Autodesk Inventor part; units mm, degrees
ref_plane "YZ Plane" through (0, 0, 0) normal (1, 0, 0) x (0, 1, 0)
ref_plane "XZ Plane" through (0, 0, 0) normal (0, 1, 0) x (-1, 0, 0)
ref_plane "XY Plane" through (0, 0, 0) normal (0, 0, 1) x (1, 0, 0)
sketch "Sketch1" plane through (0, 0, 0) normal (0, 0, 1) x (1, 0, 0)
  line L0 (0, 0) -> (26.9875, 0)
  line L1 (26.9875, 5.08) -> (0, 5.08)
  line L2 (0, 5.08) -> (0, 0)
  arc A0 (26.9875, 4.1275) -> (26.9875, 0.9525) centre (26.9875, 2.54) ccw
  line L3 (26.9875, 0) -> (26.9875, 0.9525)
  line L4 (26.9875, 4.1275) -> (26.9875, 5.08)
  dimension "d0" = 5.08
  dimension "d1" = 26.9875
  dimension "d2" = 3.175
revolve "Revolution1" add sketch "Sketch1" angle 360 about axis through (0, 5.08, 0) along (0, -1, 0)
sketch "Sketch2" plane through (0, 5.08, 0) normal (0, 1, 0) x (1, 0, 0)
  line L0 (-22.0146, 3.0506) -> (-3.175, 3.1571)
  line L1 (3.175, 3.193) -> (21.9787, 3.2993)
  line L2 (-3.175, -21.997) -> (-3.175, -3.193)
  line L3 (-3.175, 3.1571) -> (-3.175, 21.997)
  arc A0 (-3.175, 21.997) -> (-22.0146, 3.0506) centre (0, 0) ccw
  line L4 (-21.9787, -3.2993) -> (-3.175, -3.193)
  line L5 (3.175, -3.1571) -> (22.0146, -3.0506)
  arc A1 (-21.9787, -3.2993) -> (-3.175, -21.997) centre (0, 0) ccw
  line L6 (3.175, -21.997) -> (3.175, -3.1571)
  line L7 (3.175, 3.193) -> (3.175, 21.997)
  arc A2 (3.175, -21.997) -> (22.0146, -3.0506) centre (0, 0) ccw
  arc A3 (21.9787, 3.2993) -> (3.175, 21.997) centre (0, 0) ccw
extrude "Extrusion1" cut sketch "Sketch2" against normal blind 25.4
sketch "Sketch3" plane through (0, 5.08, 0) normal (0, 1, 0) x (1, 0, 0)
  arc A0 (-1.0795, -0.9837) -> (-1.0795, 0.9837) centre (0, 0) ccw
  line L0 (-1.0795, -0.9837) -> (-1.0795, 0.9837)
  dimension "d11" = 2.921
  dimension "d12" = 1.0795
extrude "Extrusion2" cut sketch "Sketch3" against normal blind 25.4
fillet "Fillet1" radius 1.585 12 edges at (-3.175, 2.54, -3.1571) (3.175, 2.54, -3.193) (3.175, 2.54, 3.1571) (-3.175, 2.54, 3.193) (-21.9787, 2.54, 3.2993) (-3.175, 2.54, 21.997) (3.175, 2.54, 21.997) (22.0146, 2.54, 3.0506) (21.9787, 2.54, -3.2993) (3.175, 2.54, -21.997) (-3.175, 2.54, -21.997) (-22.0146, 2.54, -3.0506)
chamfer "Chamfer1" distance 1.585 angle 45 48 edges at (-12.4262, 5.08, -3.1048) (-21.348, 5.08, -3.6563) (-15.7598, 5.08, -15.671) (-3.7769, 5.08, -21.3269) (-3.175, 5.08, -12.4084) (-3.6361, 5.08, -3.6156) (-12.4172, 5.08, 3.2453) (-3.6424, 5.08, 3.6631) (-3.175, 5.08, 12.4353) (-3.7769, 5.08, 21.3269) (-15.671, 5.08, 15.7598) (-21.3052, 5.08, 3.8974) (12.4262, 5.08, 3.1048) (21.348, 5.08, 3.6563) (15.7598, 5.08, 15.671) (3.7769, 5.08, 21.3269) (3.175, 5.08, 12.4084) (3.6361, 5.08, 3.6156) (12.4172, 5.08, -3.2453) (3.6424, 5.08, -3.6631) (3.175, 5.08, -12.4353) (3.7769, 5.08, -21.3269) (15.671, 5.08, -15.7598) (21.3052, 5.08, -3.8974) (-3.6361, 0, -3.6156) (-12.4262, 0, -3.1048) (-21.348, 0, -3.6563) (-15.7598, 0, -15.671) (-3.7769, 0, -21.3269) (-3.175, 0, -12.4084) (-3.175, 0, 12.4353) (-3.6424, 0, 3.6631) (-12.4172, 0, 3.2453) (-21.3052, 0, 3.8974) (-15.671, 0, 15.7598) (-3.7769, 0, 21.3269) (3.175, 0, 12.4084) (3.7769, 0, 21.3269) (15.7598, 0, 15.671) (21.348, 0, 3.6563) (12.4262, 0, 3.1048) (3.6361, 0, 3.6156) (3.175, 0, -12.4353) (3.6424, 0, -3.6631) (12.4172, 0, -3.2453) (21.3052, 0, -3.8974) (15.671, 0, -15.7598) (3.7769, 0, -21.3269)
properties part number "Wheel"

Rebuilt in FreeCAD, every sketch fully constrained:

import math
import FreeCAD as App
import Part
import Sketcher

V = App.Vector
Q = App.Units.Quantity


def edges_at(feature, points):
    """Names of the edges that pass closest to the given points."""
    edges = feature.Shape.Edges
    near = lambda p: min(range(len(edges)), key=lambda i: edges[i].distToShape(Part.Vertex(*p))[0])
    return sorted({f"Edge{near(p) + 1}" for p in points})

doc = App.newDocument("Part")
body = doc.addObject("PartDesign::Body", "Body")

# Sketch on XY plane
sketch1 = body.newObject("Sketcher::SketchObject", "Sketch")
sketch1.AttachmentSupport = (doc.getObject("XY_Plane"), [""])
sketch1.MapMode = "FlatFace"
sketch1.addGeometry([
    Part.LineSegment(V(0, 5.1, 0), V(0, 0, 0)),  # 0
    Part.LineSegment(V(0, 0, 0), V(27, 0, 0)),  # 1
    Part.LineSegment(V(27, 0, 0), V(27, 1, 0)),  # 2
    Part.ArcOfCircle(Part.Circle(V(27, 2.5, 0), V(0, 0, 1), 1.6), math.radians(90), math.radians(270)),  # 3
    Part.LineSegment(V(27, 4.1, 0), V(27, 5.1, 0)),  # 4
    Part.LineSegment(V(27, 5.1, 0), V(0, 5.1, 0)),  # 5
], False)
sketch1.addConstraint([
    Sketcher.Constraint("Coincident", 0, 2, 1, 1),
    Sketcher.Constraint("Coincident", 1, 2, 2, 1),
    Sketcher.Constraint("Coincident", 2, 2, 3, 2),
    Sketcher.Constraint("Coincident", 3, 1, 4, 1),
    Sketcher.Constraint("Coincident", 4, 2, 5, 1),
    Sketcher.Constraint("Coincident", 5, 2, 0, 1),
    Sketcher.Constraint("Vertical", 0),
    Sketcher.Constraint("Horizontal", 1),
    Sketcher.Constraint("Vertical", 2),
    Sketcher.Constraint("Vertical", 4),
    Sketcher.Constraint("Horizontal", 5),
    Sketcher.Constraint("Coincident", 0, 2, -1, 1),
    Sketcher.Constraint("Vertical", 3, 3, 1, 2),
    Sketcher.Constraint("Vertical", 2, 2, 3, 1),
    Sketcher.Constraint("Equal", 2, 4),
    Sketcher.Constraint("DistanceY", 0, 2, 0, 1, Q("0.2 in")),
    Sketcher.Constraint("Radius", 3, Q("0.0625 in")),
    Sketcher.Constraint("DistanceX", 1, 1, 1, 2, Q("1.0625 in")),
])
revolution = body.newObject("PartDesign::Revolution", "Revolution")
revolution.Profile = sketch1
revolution.ReferenceAxis = (sketch1, ["V_Axis"])
revolution.Angle = 360

# Sketch on XZ plane
sketch2 = body.newObject("Sketcher::SketchObject", "Sketch001")
sketch2.AttachmentSupport = (doc.getObject("XZ_Plane"), [""])
sketch2.MapMode = "FlatFace"
sketch2.AttachmentOffset = App.Placement(V(0, 0, -0.2 * 25.4), App.Rotation())
sketch2.addGeometry([
    Part.ArcOfCircle(Part.Circle(V(0, 0, 0), V(0, 0, 1), 22), math.radians(-172), math.radians(-98)),  # 0
    Part.LineSegment(V(-22, -3, 0), V(-3, -3, 0)),  # 1
    Part.LineSegment(V(-3, -3, 0), V(-3, -22, 0)),  # 2
    Part.LineSegment(V(3, -22, 0), V(3, -3, 0)),  # 3
    Part.LineSegment(V(3, -3, 0), V(22, -3, 0)),  # 4
    Part.ArcOfCircle(Part.Circle(V(0, 0, 0), V(0, 0, 1), 22), math.radians(-82), math.radians(-9)),  # 5
    Part.ArcOfCircle(Part.Circle(V(0, 0, 0), V(0, 0, 1), 22), math.radians(98), math.radians(171)),  # 6
    Part.LineSegment(V(-3, 22, 0), V(-3, 3, 0)),  # 7
    Part.LineSegment(V(-3, 3, 0), V(-22, 3, 0)),  # 8
    Part.LineSegment(V(22, 3, 0), V(3, 3, 0)),  # 9
    Part.LineSegment(V(3, 3, 0), V(3, 22, 0)),  # 10
    Part.ArcOfCircle(Part.Circle(V(0, 0, 0), V(0, 0, 1), 22), math.radians(8), math.radians(82)),  # 11
], False)
sketch2.addConstraint([
    Sketcher.Constraint("Coincident", 0, 1, 1, 1),
    Sketcher.Constraint("Coincident", 1, 2, 2, 1),
    Sketcher.Constraint("Coincident", 2, 2, 0, 2),
    Sketcher.Constraint("Coincident", 3, 2, 4, 1),
    Sketcher.Constraint("Coincident", 4, 2, 5, 2),
    Sketcher.Constraint("Coincident", 5, 1, 3, 1),
    Sketcher.Constraint("Coincident", 6, 1, 7, 1),
    Sketcher.Constraint("Coincident", 7, 2, 8, 1),
    Sketcher.Constraint("Coincident", 8, 2, 6, 2),
    Sketcher.Constraint("Coincident", 9, 2, 10, 1),
    Sketcher.Constraint("Coincident", 10, 2, 11, 2),
    Sketcher.Constraint("Coincident", 11, 1, 9, 1),
    Sketcher.Constraint("Vertical", 2),
    Sketcher.Constraint("Vertical", 3),
    Sketcher.Constraint("Vertical", 7),
    Sketcher.Constraint("Vertical", 10),
    Sketcher.Constraint("Coincident", 0, 3, -1, 1),
    Sketcher.Constraint("Coincident", 5, 3, -1, 1),
    Sketcher.Constraint("Coincident", 6, 3, -1, 1),
    Sketcher.Constraint("Coincident", 11, 3, -1, 1),
    Sketcher.Constraint("Equal", 0, 5),
    Sketcher.Constraint("Equal", 5, 6),
    Sketcher.Constraint("Equal", 6, 11),
    Sketcher.Constraint("Symmetric", 3, 2, 7, 2, -1, 1),
    Sketcher.Constraint("Symmetric", 1, 2, 9, 2, -1, 1),
    Sketcher.Constraint("Parallel", 1, 4),
    Sketcher.Constraint("Parallel", 4, 8),
    Sketcher.Constraint("Parallel", 8, 9),
    Sketcher.Constraint("Horizontal", 2, 2, 5, 1),
    Sketcher.Constraint("Radius", 0, Q("0.875 in")),
    Sketcher.Constraint("DistanceX", 1, 2, 3, 2, Q("0.25 in")),
    Sketcher.Constraint("DistanceY", 1, 2, 7, 2, Q("0.25 in")),
    Sketcher.Constraint("DistanceY", 2, 2, 2, 1, 18.84),
    Sketcher.Constraint("DistanceY", 0, 1, -1, 1, Q("0.1201 in")),
])
pocket1 = body.newObject("PartDesign::Pocket", "Pocket")
pocket1.Profile = sketch2
pocket1.Length = Q("1 in")
pocket1.Reversed = True

# Sketch on XZ plane
sketch3 = body.newObject("Sketcher::SketchObject", "Sketch002")
sketch3.AttachmentSupport = (doc.getObject("XZ_Plane"), [""])
sketch3.MapMode = "FlatFace"
sketch3.AttachmentOffset = App.Placement(V(0, 0, -0.2 * 25.4), App.Rotation())
sketch3.addGeometry([
    Part.LineSegment(V(-1.1, -1, 0), V(-1.1, 1, 0)),
    Part.ArcOfCircle(Part.Circle(V(0, 0, 0), V(0, 0, 1), 1.5), math.radians(-138), math.radians(138)),
], False)
sketch3.addConstraint([
    Sketcher.Constraint("Coincident", 0, 1, 1, 1),
    Sketcher.Constraint("Coincident", 1, 2, 0, 2),
    Sketcher.Constraint("Vertical", 0),
    Sketcher.Constraint("Coincident", 1, 3, -1, 1),
    Sketcher.Constraint("Radius", 1, Q("0.0575 in")),
    Sketcher.Constraint("DistanceX", 0, 1, -1, 1, Q("0.0425 in")),
])
pocket2 = body.newObject("PartDesign::Pocket", "Pocket001")
pocket2.Profile = sketch3
pocket2.Length = Q("1 in")
pocket2.Reversed = True
doc.recompute()

fillet = body.newObject("PartDesign::Fillet", "Fillet")
fillet.Base = (pocket2, edges_at(pocket2, [
    (-3.175, 2.54, -3.157),
    (3.175, 2.54, -3.193),
    (3.175, 2.54, 3.157),
    (-3.175, 2.54, 3.193),
    (-21.979, 2.54, 3.299),
    (-3.175, 2.54, 21.997),
    (3.175, 2.54, 21.997),
    (22.015, 2.54, 3.051),
    (21.979, 2.54, -3.299),
    (3.175, 2.54, -21.997),
    (-3.175, 2.54, -21.997),
    (-22.015, 2.54, -3.051),
]))
fillet.Radius = Q("0.0624016 in")
doc.recompute()

chamfer = body.newObject("PartDesign::Chamfer", "Chamfer")
chamfer.Base = (fillet, edges_at(fillet, [
    (-12.426, 5.08, -3.105),
    (-21.348, 5.08, -3.656),
    (-15.76, 5.08, -15.671),
    (-3.777, 5.08, -21.327),
    (-3.175, 5.08, -12.408),
    (-3.636, 5.08, -3.616),
    (-12.417, 5.08, 3.245),
    (-3.642, 5.08, 3.663),
    (-3.175, 5.08, 12.435),
    (-3.777, 5.08, 21.327),
    (-15.671, 5.08, 15.76),
    (-21.305, 5.08, 3.897),
    (12.426, 5.08, 3.105),
    (21.348, 5.08, 3.656),
    (15.76, 5.08, 15.671),
    (3.777, 5.08, 21.327),
    (3.175, 5.08, 12.408),
    (3.636, 5.08, 3.616),
    (12.417, 5.08, -3.245),
    (3.642, 5.08, -3.663),
    (3.175, 5.08, -12.435),
    (3.777, 5.08, -21.327),
    (15.671, 5.08, -15.76),
    (21.305, 5.08, -3.897),
    (-3.636, 0, -3.616),
    (-12.426, 0, -3.105),
    (-21.348, 0, -3.656),
    (-15.76, 0, -15.671),
    (-3.777, 0, -21.327),
    (-3.175, 0, -12.408),
    (-3.175, 0, 12.435),
    (-3.642, 0, 3.663),
    (-12.417, 0, 3.245),
    (-21.305, 0, 3.897),
    (-15.671, 0, 15.76),
    (-3.777, 0, 21.327),
    (3.175, 0, 12.408),
    (3.777, 0, 21.327),
    (15.76, 0, 15.671),
    (21.348, 0, 3.656),
    (12.426, 0, 3.105),
    (3.636, 0, 3.616),
    (3.175, 0, -12.435),
    (3.642, 0, -3.663),
    (12.417, 0, -3.245),
    (21.305, 0, -3.897),
    (15.671, 0, -15.76),
    (3.777, 0, -21.327),
]))
chamfer.Size = Q("0.0624016 in")

doc.recompute()
